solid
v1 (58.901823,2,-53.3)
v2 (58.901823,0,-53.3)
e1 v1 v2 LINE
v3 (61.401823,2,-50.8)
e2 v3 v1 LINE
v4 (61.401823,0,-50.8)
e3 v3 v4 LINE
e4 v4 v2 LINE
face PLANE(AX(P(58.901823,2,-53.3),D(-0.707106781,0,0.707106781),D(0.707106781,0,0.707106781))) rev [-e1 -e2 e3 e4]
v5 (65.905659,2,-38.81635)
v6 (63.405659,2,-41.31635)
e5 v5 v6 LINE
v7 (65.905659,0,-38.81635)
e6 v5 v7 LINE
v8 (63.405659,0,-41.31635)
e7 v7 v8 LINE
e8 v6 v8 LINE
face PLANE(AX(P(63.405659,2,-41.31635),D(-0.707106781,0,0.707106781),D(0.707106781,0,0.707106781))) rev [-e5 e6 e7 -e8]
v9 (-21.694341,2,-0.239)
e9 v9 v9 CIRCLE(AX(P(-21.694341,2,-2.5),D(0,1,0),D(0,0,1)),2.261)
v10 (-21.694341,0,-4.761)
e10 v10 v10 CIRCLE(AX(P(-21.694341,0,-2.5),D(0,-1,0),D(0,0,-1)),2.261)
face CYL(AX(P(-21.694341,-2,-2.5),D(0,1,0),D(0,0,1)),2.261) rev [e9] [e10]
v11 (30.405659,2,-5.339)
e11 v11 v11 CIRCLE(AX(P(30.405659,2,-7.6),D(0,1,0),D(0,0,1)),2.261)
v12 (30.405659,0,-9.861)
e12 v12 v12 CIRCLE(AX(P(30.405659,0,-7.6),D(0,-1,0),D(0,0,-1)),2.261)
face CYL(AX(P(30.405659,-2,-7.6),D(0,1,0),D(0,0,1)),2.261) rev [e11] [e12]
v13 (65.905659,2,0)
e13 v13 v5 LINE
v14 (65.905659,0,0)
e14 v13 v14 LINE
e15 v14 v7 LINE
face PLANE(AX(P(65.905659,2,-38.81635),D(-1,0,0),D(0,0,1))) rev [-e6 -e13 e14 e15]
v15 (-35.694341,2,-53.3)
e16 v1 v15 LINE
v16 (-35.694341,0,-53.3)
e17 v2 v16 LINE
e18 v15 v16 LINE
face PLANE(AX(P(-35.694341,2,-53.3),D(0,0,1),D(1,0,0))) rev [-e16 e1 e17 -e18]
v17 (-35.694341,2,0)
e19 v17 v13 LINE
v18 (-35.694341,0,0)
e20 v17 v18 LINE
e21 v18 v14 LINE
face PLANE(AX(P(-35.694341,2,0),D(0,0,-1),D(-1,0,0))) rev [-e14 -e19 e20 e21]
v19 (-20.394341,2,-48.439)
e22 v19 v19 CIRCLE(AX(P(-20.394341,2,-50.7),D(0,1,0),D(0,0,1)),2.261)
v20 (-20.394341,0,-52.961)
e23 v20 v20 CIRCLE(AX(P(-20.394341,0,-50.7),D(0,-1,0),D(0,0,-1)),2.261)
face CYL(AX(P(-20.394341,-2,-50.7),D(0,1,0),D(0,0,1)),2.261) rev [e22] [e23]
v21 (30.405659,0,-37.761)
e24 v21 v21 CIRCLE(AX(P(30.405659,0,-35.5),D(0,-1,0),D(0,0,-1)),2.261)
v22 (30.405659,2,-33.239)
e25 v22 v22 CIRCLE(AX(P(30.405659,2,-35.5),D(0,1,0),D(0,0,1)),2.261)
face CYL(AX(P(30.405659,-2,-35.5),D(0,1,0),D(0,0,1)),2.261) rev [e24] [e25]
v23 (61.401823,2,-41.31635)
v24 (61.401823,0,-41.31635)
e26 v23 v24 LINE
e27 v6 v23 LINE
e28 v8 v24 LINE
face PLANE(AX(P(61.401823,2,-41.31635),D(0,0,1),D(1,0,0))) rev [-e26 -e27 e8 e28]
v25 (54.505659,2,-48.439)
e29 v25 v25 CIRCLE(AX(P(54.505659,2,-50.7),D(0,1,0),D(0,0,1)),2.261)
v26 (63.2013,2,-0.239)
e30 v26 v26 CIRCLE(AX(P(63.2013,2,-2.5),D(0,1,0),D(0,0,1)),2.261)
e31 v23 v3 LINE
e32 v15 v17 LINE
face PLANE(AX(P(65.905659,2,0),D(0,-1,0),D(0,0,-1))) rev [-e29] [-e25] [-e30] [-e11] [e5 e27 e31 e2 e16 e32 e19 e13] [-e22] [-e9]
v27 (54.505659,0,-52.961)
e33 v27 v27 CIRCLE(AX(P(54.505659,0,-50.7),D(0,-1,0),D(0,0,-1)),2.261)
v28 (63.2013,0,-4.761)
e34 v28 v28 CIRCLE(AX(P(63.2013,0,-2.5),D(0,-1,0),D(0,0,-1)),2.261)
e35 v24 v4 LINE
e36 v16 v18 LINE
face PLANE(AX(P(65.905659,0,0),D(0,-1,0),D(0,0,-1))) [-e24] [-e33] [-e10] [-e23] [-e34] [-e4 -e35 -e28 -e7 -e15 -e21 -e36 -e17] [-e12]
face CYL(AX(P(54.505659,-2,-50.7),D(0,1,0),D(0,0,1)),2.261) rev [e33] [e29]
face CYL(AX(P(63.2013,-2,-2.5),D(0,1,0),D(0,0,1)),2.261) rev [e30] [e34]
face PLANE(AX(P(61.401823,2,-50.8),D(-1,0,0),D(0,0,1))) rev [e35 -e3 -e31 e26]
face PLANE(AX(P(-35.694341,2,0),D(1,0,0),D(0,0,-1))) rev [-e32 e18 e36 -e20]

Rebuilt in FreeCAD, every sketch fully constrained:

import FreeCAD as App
import Part
import Sketcher

V = App.Vector
Q = App.Units.Quantity


def add_polygon(sketch, points):
    """Adds a closed chain of lines whose ends are joined by coincident constraints."""
    first, n = sketch.GeometryCount, len(points)
    for a, b in zip(points, points[1:] + points[:1]):
        sketch.addGeometry(Part.LineSegment(App.Vector(*a, 0), App.Vector(*b, 0)), False)
    for i in range(n):
        sketch.addConstraint(Sketcher.Constraint("Coincident", first + i, 2, first + (i + 1) % n, 1))

doc = App.newDocument("Part")
body = doc.addObject("PartDesign::Body", "Body")

# Sketch on XZ plane
sketch1 = doc.addObject("Sketcher::SketchObject", "Sketch")
body.addObject(sketch1)
sketch1.AttachmentSupport = (doc.XZ_Plane, [""])
sketch1.MapMode = "FlatFace"
add_polygon(sketch1, [(-35.7, -53.3), (-35.7, 0), (65.9, 0), (65.9, -38.8), (63.4, -41.3), (61.4, -41.3), (61.4, -50.8), (58.9, -53.3)])  # lines 0-7
sketch1.addConstraint(Sketcher.Constraint("Vertical", 0))
sketch1.addConstraint(Sketcher.Constraint("Horizontal", 1))
sketch1.addConstraint(Sketcher.Constraint("Vertical", 2))
sketch1.addConstraint(Sketcher.Constraint("Horizontal", 4))
sketch1.addConstraint(Sketcher.Constraint("Vertical", 5))
sketch1.addConstraint(Sketcher.Constraint("Horizontal", 7))
sketch1.addConstraint(Sketcher.Constraint("PointOnObject", 0, 2, -1))
sketch1.addConstraint(Sketcher.Constraint("Parallel", 3, 6))
sketch1.addConstraint(Sketcher.Constraint("Equal", 3, 6))
sketch1.addConstraint(Sketcher.Constraint("Angle", 3, Q("-135 deg")))
sketch1.addConstraint(Sketcher.Constraint("DistanceX", 1, 1, 1, 2, Q("101.6 mm")))
sketch1.addConstraint(Sketcher.Constraint("DistanceY", 0, 1, 0, 2, Q("53.3 mm")))
sketch1.addConstraint(Sketcher.Constraint("DistanceY", 5, 2, -1, 1, Q("50.8 mm")))
sketch1.addConstraint(Sketcher.Constraint("DistanceY", 2, 2, 2, 1, Q("38.81635 mm")))
sketch1.addConstraint(Sketcher.Constraint("DistanceX", 4, 2, 4, 1, Q("2.003835 mm")))
sketch1.addConstraint(Sketcher.Constraint("DistanceX", 0, 2, -1, 1, Q("35.694341 mm")))
pad1 = doc.addObject("PartDesign::Pad", "Pad")
body.addObject(pad1)
pad1.Profile = sketch1
pad1.Length = 2
pad1.Reversed = True

# Sketch on XZ plane
sketch2 = doc.addObject("Sketcher::SketchObject", "Sketch001")
body.addObject(sketch2)
sketch2.AttachmentSupport = (doc.XZ_Plane, [""])
sketch2.MapMode = "FlatFace"
sketch2.AttachmentOffset = App.Placement(V(0, 0, -2), App.Rotation())
sketch2.addGeometry(Part.Circle(V(-20.4, -50.7, 0), V(0, 0, 1), 2.3), False)
sketch2.addConstraint(Sketcher.Constraint("Diameter", 0, Q("4.522 mm")))
sketch2.addConstraint(Sketcher.Constraint("DistanceY", 0, 3, -1, 1, Q("50.7 mm")))
sketch2.addConstraint(Sketcher.Constraint("DistanceX", 0, 3, -1, 1, Q("20.394341 mm")))
pocket1 = doc.addObject("PartDesign::Pocket", "Pocket")
body.addObject(pocket1)
pocket1.Profile = sketch2
pocket1.Length = 4
pocket1.Reversed = True

# Sketch on XZ plane
sketch3 = doc.addObject("Sketcher::SketchObject", "Sketch002")
body.addObject(sketch3)
sketch3.AttachmentSupport = (doc.XZ_Plane, [""])
sketch3.MapMode = "FlatFace"
sketch3.AttachmentOffset = App.Placement(V(0, 0, -2), App.Rotation())
sketch3.addGeometry(Part.Circle(V(-21.7, -2.5, 0), V(0, 0, 1), 2.3), False)
sketch3.addGeometry(Part.Circle(V(63.2, -2.5, 0), V(0, 0, 1), 2.3), False)
sketch3.addGeometry(Part.Circle(V(30.4, -7.6, 0), V(0, 0, 1), 2.3), False)
sketch3.addGeometry(Part.Circle(V(30.4, -35.5, 0), V(0, 0, 1), 2.3), False)
sketch3.addGeometry(Part.Circle(V(54.5, -50.7, 0), V(0, 0, 1), 2.3), False)
sketch3.addConstraint(Sketcher.Constraint("Equal", 0, 1))
sketch3.addConstraint(Sketcher.Constraint("Equal", 1, 2))
sketch3.addConstraint(Sketcher.Constraint("Equal", 2, 3))
sketch3.addConstraint(Sketcher.Constraint("Equal", 3, 4))
sketch3.addConstraint(Sketcher.Constraint("Horizontal", 0, 3, 1, 3))
sketch3.addConstraint(Sketcher.Constraint("Vertical", 2, 3, 3, 3))
sketch3.addConstraint(Sketcher.Constraint("Diameter", 0, Q("4.522 mm")))
sketch3.addConstraint(Sketcher.Constraint("DistanceY", 3, 3, 1, 3, Q("33 mm")))
sketch3.addConstraint(Sketcher.Constraint("DistanceY", 0, 3, -1, 1, Q("2.5 mm")))
sketch3.addConstraint(Sketcher.Constraint("DistanceY", 2, 3, -1, 1, Q("7.6 mm")))
sketch3.addConstraint(Sketcher.Constraint("DistanceY", 4, 3, -1, 1, Q("50.7 mm")))
sketch3.addConstraint(Sketcher.Constraint("DistanceX", 0, 3, 2, 3, Q("52.1 mm")))
sketch3.addConstraint(Sketcher.Constraint("DistanceX", 3, 3, 4, 3, Q("24.1 mm")))
sketch3.addConstraint(Sketcher.Constraint("DistanceX", -1, 1, 1, 3, Q("63.2013 mm")))
sketch3.addConstraint(Sketcher.Constraint("DistanceX", 0, 3, -1, 1, Q("21.694341 mm")))
pocket2 = doc.addObject("PartDesign::Pocket", "Pocket001")
body.addObject(pocket2)
pocket2.Profile = sketch3
pocket2.Length = 4
pocket2.Reversed = True

doc.recompute()
